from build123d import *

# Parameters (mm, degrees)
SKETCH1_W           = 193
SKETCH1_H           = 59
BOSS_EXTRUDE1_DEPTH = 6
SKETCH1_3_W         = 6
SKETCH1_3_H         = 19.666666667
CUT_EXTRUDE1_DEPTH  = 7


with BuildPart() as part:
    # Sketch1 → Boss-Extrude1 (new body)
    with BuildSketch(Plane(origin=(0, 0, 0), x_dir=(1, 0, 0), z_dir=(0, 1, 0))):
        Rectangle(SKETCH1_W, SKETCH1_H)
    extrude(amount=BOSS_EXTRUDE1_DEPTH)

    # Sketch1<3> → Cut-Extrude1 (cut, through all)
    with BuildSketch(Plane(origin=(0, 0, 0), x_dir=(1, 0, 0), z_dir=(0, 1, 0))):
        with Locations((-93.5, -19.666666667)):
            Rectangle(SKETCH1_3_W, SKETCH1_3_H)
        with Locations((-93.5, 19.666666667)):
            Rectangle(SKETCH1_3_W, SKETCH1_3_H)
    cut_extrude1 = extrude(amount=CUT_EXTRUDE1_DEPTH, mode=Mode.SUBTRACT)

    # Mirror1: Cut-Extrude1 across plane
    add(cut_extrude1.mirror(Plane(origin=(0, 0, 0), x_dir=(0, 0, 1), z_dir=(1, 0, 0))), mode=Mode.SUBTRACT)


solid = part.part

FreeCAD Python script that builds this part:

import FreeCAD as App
import Part
import Sketcher
from FreeCAD import Vector
Q = App.Units.Quantity


def add_polygon(sketch, points):
    """Adds a closed chain of lines whose ends are joined by coincident constraints."""
    first, n = sketch.GeometryCount, len(points)
    for a, b in zip(points, points[1:] + points[:1]):
        sketch.addGeometry(Part.LineSegment(App.Vector(*a, 0), App.Vector(*b, 0)), False)
    for i in range(n):
        sketch.addConstraint(Sketcher.Constraint("Coincident", first + i, 2, first + (i + 1) % n, 1))

doc = App.newDocument("Part")
body = doc.addObject("PartDesign::Body", "Body")

sketch1 = body.newObject("Sketcher::SketchObject", "Sketch")
sketch1.AttachmentSupport = (doc.getObject("XZ_Plane"), [""])
sketch1.MapMode = "FlatFace"
add_polygon(sketch1, [(-96, -30), (-96, 30), (96, 30), (96, -30)])
sketch1.addConstraint([
    Sketcher.Constraint("Vertical", 0),
    Sketcher.Constraint("Horizontal", 1),
    Sketcher.Constraint("Vertical", 2),
    Sketcher.Constraint("Horizontal", 3),
    Sketcher.Constraint("Symmetric", 0, 2, 2, 2, -1, 1),
    Sketcher.Constraint("DistanceX", 1, 1, 1, 2, Q("193 mm")),
    Sketcher.Constraint("DistanceY", 0, 1, 0, 2, Q("59 mm")),
])
pad1 = body.newObject("PartDesign::Pad", "Pad")
pad1.Profile = sketch1
pad1.Length = 6
pad1.Reversed = True

sketch2 = body.newObject("Sketcher::SketchObject", "Sketch001")
sketch2.AttachmentSupport = (doc.getObject("XZ_Plane"), [""])
sketch2.MapMode = "FlatFace"
add_polygon(sketch2, [(-96, 10), (-96, 30), (-90, 30), (-90, 10)])
add_polygon(sketch2, [(-96, -30), (-96, -10), (-90, -10), (-90, -30)])
sketch2.addConstraint([
    Sketcher.Constraint("Vertical", 0),
    Sketcher.Constraint("Horizontal", 1),
    Sketcher.Constraint("Vertical", 2),
    Sketcher.Constraint("Horizontal", 3),
    Sketcher.Constraint("Vertical", 4),
    Sketcher.Constraint("Horizontal", 5),
    Sketcher.Constraint("Vertical", 6),
    Sketcher.Constraint("Horizontal", 7),
    Sketcher.Constraint("Symmetric", 3, 2, 4, 2, -1),
    Sketcher.Constraint("Symmetric", 1, 2, 6, 2, -1),
    Sketcher.Constraint("DistanceX", 1, 1, 1, 2, Q("6 mm")),
    Sketcher.Constraint("DistanceY", 6, 2, 1, 2, Q("59 mm")),
    Sketcher.Constraint("DistanceX", 0, 2, -1, 1, Q("96.5 mm")),
    Sketcher.Constraint("DistanceY", 0, 1, 0, 2, Q("19.666667 mm")),
])
pocket1 = body.newObject("PartDesign::Pocket", "Pocket")
pocket1.Profile = sketch2
pocket1.Type = "ThroughAll"
doc.recompute()

mirrored = body.newObject("PartDesign::Mirrored", "Mirrored")
mirrored.Originals = [pocket1]
mirrored.MirrorPlane = (doc.getObject("YZ_Plane"), [""])
body.Tip = mirrored

doc.recompute()
